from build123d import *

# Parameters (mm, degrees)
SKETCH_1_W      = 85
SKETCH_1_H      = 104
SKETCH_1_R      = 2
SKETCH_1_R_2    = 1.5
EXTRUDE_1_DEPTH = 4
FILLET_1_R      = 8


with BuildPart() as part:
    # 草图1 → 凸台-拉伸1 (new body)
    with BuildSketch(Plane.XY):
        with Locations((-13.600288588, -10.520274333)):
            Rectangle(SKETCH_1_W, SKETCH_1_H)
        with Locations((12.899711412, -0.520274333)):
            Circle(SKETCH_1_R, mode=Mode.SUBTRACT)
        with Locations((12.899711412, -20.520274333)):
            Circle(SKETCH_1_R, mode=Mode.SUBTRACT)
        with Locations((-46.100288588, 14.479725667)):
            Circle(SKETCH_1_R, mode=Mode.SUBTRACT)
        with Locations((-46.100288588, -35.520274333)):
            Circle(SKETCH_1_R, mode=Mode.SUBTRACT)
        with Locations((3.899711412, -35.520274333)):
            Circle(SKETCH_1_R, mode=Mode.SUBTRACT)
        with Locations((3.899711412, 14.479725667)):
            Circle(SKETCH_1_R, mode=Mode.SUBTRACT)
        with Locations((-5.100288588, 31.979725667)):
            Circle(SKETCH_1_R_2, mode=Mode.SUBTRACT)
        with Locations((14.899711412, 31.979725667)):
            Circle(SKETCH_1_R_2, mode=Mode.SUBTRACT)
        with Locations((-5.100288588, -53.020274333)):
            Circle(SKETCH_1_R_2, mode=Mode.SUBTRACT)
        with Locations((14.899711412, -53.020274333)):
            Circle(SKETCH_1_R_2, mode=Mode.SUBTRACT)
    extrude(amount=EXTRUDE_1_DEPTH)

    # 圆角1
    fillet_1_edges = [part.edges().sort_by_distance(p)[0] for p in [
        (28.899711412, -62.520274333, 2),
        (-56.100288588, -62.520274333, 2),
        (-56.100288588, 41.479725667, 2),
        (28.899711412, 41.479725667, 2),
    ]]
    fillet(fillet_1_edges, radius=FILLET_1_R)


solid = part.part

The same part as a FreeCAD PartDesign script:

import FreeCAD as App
import Part
import Sketcher


def edges_at(feature, points):
    """Names of the edges that pass closest to the given points."""
    edges = feature.Shape.Edges
    near = lambda p: min(range(len(edges)), key=lambda i: edges[i].distToShape(Part.Vertex(*p))[0])
    return sorted({f"Edge{near(p) + 1}" for p in points})


def add_polygon(sketch, points):
    """Adds a closed chain of lines whose ends are joined by coincident constraints."""
    first, n = sketch.GeometryCount, len(points)
    for a, b in zip(points, points[1:] + points[:1]):
        sketch.addGeometry(Part.LineSegment(App.Vector(*a, 0), App.Vector(*b, 0)), False)
    for i in range(n):
        sketch.addConstraint(Sketcher.Constraint("Coincident", first + i, 2, first + (i + 1) % n, 1))

doc = App.newDocument("Part")
params = doc.addObject("Spreadsheet::Sheet", "Params")
for row, (alias, value) in enumerate([
    ("sketch1_diameter", "4 mm"),
    ("sketch1_diameter2", "3 mm"),
    ("sketch1_width", "85 mm"),
    ("sketch1_height", "104 mm"),
    ("pad1_length", "4 mm"),
    ("fillet_radius", "8 mm"),
], start=1):
    params.set(f"A{row}", alias)
    params.set(f"B{row}", "=" + value)
    params.setAlias(f"B{row}", alias)

body = doc.addObject("PartDesign::Body", "Body")

# Sketch on XY plane
sketch1 = body.newObject("Sketcher::SketchObject", "Sketch")
sketch1.AttachmentSupport = (doc.getObject("XY_Plane"), [""])
sketch1.MapMode = "FlatFace"
add_polygon(sketch1, [(-56.100289, 41.479726), (-56.100289, -62.520274), (28.899711, -62.520274), (28.899711, 41.479726)])  # lines 0-3
sketch1.addGeometry(Part.Circle(App.Vector(-46.100289, -35.520274, 0), App.Vector(0, 0, 1), 2), False)  # 4
sketch1.addGeometry(Part.Circle(App.Vector(-5.100289, -53.020274, 0), App.Vector(0, 0, 1), 1.5), False)  # 5
sketch1.addGeometry(Part.Circle(App.Vector(14.899711, -53.020274, 0), App.Vector(0, 0, 1), 1.5), False)  # 6
sketch1.addGeometry(Part.Circle(App.Vector(3.899711, -35.520274, 0), App.Vector(0, 0, 1), 2), False)  # 7
sketch1.addGeometry(Part.Circle(App.Vector(12.899711, -20.520274, 0), App.Vector(0, 0, 1), 2), False)  # 8
sketch1.addGeometry(Part.Circle(App.Vector(-46.100289, 14.479726, 0), App.Vector(0, 0, 1), 2), False)  # 9
sketch1.addGeometry(Part.Circle(App.Vector(12.899711, -0.520274, 0), App.Vector(0, 0, 1), 2), False)  # 10
sketch1.addGeometry(Part.Circle(App.Vector(-5.100289, 31.979726, 0), App.Vector(0, 0, 1), 1.5), False)  # 11
sketch1.addGeometry(Part.Circle(App.Vector(3.899711, 14.479726, 0), App.Vector(0, 0, 1), 2), False)  # 12
sketch1.addGeometry(Part.Circle(App.Vector(14.899711, 31.979726, 0), App.Vector(0, 0, 1), 1.5), False)  # 13
sketch1.addConstraint([
    Sketcher.Constraint("Vertical", 0),
    Sketcher.Constraint("Horizontal", 1),
    Sketcher.Constraint("Vertical", 2),
    Sketcher.Constraint("Horizontal", 3),
    Sketcher.Constraint("Equal", 5, 6),
    Sketcher.Constraint("Equal", 4, 7),
    Sketcher.Constraint("Equal", 7, 8),
    Sketcher.Constraint("Equal", 8, 9),
    Sketcher.Constraint("Equal", 9, 10),
    Sketcher.Constraint("Equal", 6, 11),
    Sketcher.Constraint("Equal", 10, 12),
    Sketcher.Constraint("Equal", 11, 13),
    Sketcher.Constraint("Horizontal", 5, 3, 6, 3),
    Sketcher.Constraint("Horizontal", 4, 3, 7, 3),
    Sketcher.Constraint("Horizontal", 9, 3, 12, 3),
    Sketcher.Constraint("Horizontal", 11, 3, 13, 3),
    Sketcher.Constraint("Vertical", 4, 3, 9, 3),
    Sketcher.Constraint("Vertical", 8, 3, 10, 3),
    Sketcher.Constraint("Vertical", 5, 3, 11, 3),
    Sketcher.Constraint("Vertical", 7, 3, 12, 3),
    Sketcher.Constraint("Vertical", 6, 3, 13, 3),
    Sketcher.Constraint("Diameter", 4, 4.0),
    Sketcher.Constraint("Diameter", 5, 3.0),
    Sketcher.Constraint("DistanceX", 1, 1, 1, 2, 85.0),
    Sketcher.Constraint("DistanceY", 0, 2, 0, 1, 104.0),
    Sketcher.Constraint("DistanceX", 4, 3, 5, 3, 41.0),
    Sketcher.Constraint("DistanceX", 5, 3, 6, 3, 20.0),
    Sketcher.Constraint("DistanceX", 5, 3, 7, 3, 9.0),
    Sketcher.Constraint("DistanceX", 7, 3, 8, 3, 9.0),
    Sketcher.Constraint("DistanceY", 7, 3, 8, 3, 15.0),
    Sketcher.Constraint("DistanceY", 4, 3, 9, 3, 50.0),
    Sketcher.Constraint("DistanceY", 8, 3, 10, 3, 20.0),
    Sketcher.Constraint("DistanceX", 0, 2, 4, 3, 10.0),
    Sketcher.Constraint("DistanceY", 0, 2, 4, 3, 27.0),
    Sketcher.Constraint("DistanceY", 5, 3, 4, 3, 17.5),
    Sketcher.Constraint("DistanceY", 10, 3, 11, 3, 32.5),
    Sketcher.Constraint("DistanceX", 4, 3, -1, 1, 46.100289),
    Sketcher.Constraint("DistanceY", 4, 3, -1, 1, 35.520274),
])
sketch1.setExpression("Constraints[25]", "Params.sketch1_diameter")
sketch1.setExpression("Constraints[26]", "Params.sketch1_diameter2")
sketch1.setExpression("Constraints[27]", "Params.sketch1_width")
sketch1.setExpression("Constraints[28]", "Params.sketch1_height")
pad1 = body.newObject("PartDesign::Pad", "Pad")
pad1.Profile = sketch1
pad1.setExpression("Length", "Params.pad1_length")
doc.recompute()

fillet = body.newObject("PartDesign::Fillet", "Fillet")
fillet.Base = (pad1, edges_at(pad1, [
    (28.9, -62.52, 2),
    (-56.1, -62.52, 2),
    (-56.1, 41.48, 2),
    (28.9, 41.48, 2),
]))
fillet.setExpression("Radius", "Params.fillet_radius")

doc.recompute()
